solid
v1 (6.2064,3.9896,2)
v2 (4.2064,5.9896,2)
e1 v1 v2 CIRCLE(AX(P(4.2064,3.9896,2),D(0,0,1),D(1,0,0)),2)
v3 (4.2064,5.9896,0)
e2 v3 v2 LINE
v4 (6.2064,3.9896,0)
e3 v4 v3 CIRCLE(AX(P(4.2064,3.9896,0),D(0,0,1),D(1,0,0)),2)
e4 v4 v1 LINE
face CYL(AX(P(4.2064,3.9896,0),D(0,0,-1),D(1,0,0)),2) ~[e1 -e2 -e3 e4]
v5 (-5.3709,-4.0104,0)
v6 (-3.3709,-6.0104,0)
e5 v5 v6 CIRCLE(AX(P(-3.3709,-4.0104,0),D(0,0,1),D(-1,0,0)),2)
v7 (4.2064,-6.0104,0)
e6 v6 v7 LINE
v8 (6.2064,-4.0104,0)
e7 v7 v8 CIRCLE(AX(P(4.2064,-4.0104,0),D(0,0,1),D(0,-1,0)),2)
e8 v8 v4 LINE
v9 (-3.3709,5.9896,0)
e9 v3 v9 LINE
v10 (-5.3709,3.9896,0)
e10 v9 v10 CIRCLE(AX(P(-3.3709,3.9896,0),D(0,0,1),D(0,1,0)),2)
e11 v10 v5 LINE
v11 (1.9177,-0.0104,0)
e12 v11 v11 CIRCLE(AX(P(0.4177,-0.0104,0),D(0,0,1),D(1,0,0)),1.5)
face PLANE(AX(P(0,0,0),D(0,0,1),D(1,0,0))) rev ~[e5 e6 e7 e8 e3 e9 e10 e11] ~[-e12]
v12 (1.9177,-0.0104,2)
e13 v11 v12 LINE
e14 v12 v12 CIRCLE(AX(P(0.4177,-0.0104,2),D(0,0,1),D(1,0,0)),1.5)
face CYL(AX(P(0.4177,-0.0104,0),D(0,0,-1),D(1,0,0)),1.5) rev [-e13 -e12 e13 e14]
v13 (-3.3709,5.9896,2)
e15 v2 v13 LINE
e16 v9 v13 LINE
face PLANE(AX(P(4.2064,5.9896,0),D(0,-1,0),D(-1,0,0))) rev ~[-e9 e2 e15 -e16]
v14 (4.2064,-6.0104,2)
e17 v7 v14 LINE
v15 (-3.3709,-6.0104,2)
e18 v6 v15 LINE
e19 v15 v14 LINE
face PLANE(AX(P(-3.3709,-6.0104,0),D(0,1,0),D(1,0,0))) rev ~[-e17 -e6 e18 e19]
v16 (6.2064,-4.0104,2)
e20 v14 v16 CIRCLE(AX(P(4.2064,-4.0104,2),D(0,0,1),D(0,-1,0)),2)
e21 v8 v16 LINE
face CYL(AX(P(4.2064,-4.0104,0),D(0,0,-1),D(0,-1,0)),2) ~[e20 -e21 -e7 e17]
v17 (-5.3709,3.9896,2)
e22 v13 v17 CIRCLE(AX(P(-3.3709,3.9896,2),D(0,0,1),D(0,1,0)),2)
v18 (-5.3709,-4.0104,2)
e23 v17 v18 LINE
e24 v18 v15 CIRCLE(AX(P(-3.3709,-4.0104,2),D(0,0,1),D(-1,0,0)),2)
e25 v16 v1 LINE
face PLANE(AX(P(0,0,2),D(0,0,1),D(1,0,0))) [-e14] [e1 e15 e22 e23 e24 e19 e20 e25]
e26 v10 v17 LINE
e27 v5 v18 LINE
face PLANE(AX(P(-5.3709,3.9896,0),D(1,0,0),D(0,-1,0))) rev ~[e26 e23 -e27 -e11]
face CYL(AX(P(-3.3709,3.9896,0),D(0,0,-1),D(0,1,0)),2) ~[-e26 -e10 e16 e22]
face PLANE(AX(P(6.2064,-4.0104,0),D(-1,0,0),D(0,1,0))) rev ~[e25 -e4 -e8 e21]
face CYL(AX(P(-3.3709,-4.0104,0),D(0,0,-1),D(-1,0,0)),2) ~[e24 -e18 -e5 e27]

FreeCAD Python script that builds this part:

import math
import FreeCAD as App
import Part
import Sketcher
from FreeCAD import Vector

doc = App.newDocument("Part")
params = doc.addObject("Spreadsheet::Sheet", "Params")
for row, (alias, value) in enumerate([
    ("sketch1_radius", "2 mm"),
    ("sketch1_diameter", "3 mm"),
    ("pad1_length", "2 mm"),
], start=1):
    params.set(f"A{row}", alias)
    params.set(f"B{row}", "=" + value)
    params.setAlias(f"B{row}", alias)

body = doc.addObject("PartDesign::Body", "Body")

# Sketch on XY plane
sketch1 = body.newObject("Sketcher::SketchObject", "Sketch")
sketch1.AttachmentSupport = (doc.getObject("XY_Plane"), [""])
sketch1.MapMode = "FlatFace"
sketch1.addGeometry(Part.ArcOfCircle(Part.Circle(Vector(4.2, 4, 0), Vector(0, 0, 1), 2), math.radians(0), math.radians(90)), False)
sketch1.addGeometry(Part.LineSegment(Vector(4.2, 6, 0), Vector(-3.4, 6, 0)), False)
sketch1.addGeometry(Part.ArcOfCircle(Part.Circle(Vector(-3.4, 4, 0), Vector(0, 0, 1), 2), math.radians(90), math.radians(180)), False)
sketch1.addGeometry(Part.LineSegment(Vector(-5.4, 4, 0), Vector(-5.4, -4, 0)), False)
sketch1.addGeometry(Part.ArcOfCircle(Part.Circle(Vector(-3.4, -4, 0), Vector(0, 0, 1), 2), math.radians(180), math.radians(270)), False)
sketch1.addGeometry(Part.LineSegment(Vector(-3.4, -6, 0), Vector(4.2, -6, 0)), False)
sketch1.addGeometry(Part.ArcOfCircle(Part.Circle(Vector(4.2, -4, 0), Vector(0, 0, 1), 2), math.radians(-90), math.radians(0)), False)
sketch1.addGeometry(Part.LineSegment(Vector(6.2, -4, 0), Vector(6.2, 4, 0)), False)
sketch1.addGeometry(Part.Circle(Vector(0.4, 0, 0), Vector(0, 0, 1), 1.5), False)
sketch1.addConstraint(Sketcher.Constraint("Tangent", 0, 2, 1, 1))
sketch1.addConstraint(Sketcher.Constraint("Tangent", 1, 2, 2, 1))
sketch1.addConstraint(Sketcher.Constraint("Tangent", 2, 2, 3, 1))
sketch1.addConstraint(Sketcher.Constraint("Tangent", 3, 2, 4, 1))
sketch1.addConstraint(Sketcher.Constraint("Tangent", 4, 2, 5, 1))
sketch1.addConstraint(Sketcher.Constraint("Tangent", 5, 2, 6, 1))
sketch1.addConstraint(Sketcher.Constraint("Tangent", 6, 2, 7, 1))
sketch1.addConstraint(Sketcher.Constraint("Tangent", 7, 2, 0, 1))
sketch1.addConstraint(Sketcher.Constraint("Horizontal", 1))
sketch1.addConstraint(Sketcher.Constraint("Vertical", 3))
sketch1.addConstraint(Sketcher.Constraint("Horizontal", 5))
sketch1.addConstraint(Sketcher.Constraint("Vertical", 7))
sketch1.addConstraint(Sketcher.Constraint("Equal", 0, 2))
sketch1.addConstraint(Sketcher.Constraint("Equal", 2, 4))
sketch1.addConstraint(Sketcher.Constraint("Equal", 4, 6))
sketch1.addConstraint(Sketcher.Constraint("Radius", 0, 2.0))
sketch1.addConstraint(Sketcher.Constraint("Diameter", 8, 3.0))
sketch1.addConstraint(Sketcher.Constraint("DistanceY", 8, 3, 0, 2, 6.0))
sketch1.addConstraint(Sketcher.Constraint("DistanceY", 4, 2, 8, 3, 6.0))
sketch1.addConstraint(Sketcher.Constraint("DistanceX", 2, 2, 8, 3, 5.7886))
sketch1.addConstraint(Sketcher.Constraint("DistanceX", 8, 3, 6, 2, 5.7887))
sketch1.addConstraint(Sketcher.Constraint("DistanceX", 2, 3, -1, 1, 3.371))
sketch1.addConstraint(Sketcher.Constraint("DistanceY", -1, 1, 0, 3, 3.9896))
sketch1.setExpression("Constraints[15]", "Params.sketch1_radius")
sketch1.setExpression("Constraints[16]", "Params.sketch1_diameter")
pad1 = body.newObject("PartDesign::Pad", "Pad")
pad1.Profile = sketch1
pad1.setExpression("Length", "Params.pad1_length")

doc.recompute()
